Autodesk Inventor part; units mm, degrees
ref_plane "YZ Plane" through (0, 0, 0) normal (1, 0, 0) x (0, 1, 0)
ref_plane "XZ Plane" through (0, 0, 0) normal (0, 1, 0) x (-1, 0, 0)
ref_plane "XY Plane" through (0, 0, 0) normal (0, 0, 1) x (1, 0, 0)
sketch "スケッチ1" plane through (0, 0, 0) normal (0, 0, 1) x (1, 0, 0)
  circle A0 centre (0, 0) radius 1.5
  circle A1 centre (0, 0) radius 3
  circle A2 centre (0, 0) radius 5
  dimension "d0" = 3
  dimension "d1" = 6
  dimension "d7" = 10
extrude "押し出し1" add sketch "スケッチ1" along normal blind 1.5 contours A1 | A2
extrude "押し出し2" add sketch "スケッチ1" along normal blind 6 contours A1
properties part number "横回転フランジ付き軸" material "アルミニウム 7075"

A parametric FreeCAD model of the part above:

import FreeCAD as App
import Part
import Sketcher
from FreeCAD import Vector
Q = App.Units.Quantity

doc = App.newDocument("Part")
body = doc.addObject("PartDesign::Body", "Body")

sketch1 = body.newObject("Sketcher::SketchObject", "Sketch")
sketch1.AttachmentSupport = (doc.getObject("XY_Plane"), [""])
sketch1.MapMode = "FlatFace"
sketch1.addGeometry([
    Part.Circle(Vector(0, 0, 0), Vector(0, 0, 1), 5),
    Part.Circle(Vector(0, 0, 0), Vector(0, 0, 1), 1.5),
], False)
sketch1.addConstraint([
    Sketcher.Constraint("Coincident", 0, 3, -1, 1),
    Sketcher.Constraint("Coincident", 1, 3, -1, 1),
    Sketcher.Constraint("Diameter", 0, Q("10 mm")),
    Sketcher.Constraint("Diameter", 1, Q("3 mm")),
])
pad1 = body.newObject("PartDesign::Pad", "Pad")
pad1.Profile = sketch1
pad1.Length = 1.5

sketch2 = body.newObject("Sketcher::SketchObject", "Sketch001")
sketch2.AttachmentSupport = (doc.getObject("XY_Plane"), [""])
sketch2.MapMode = "FlatFace"
sketch2.addGeometry([
    Part.Circle(Vector(0, 0, 0), Vector(0, 0, 1), 3),
    Part.Circle(Vector(0, 0, 0), Vector(0, 0, 1), 1.5),
], False)
sketch2.addConstraint([
    Sketcher.Constraint("Coincident", 0, 3, -1, 1),
    Sketcher.Constraint("Coincident", 1, 3, -1, 1),
    Sketcher.Constraint("Diameter", 0, Q("6 mm")),
    Sketcher.Constraint("Diameter", 1, Q("3 mm")),
])
pad2 = body.newObject("PartDesign::Pad", "Pad001")
pad2.Profile = sketch2
pad2.Length = 6

doc.recompute()
